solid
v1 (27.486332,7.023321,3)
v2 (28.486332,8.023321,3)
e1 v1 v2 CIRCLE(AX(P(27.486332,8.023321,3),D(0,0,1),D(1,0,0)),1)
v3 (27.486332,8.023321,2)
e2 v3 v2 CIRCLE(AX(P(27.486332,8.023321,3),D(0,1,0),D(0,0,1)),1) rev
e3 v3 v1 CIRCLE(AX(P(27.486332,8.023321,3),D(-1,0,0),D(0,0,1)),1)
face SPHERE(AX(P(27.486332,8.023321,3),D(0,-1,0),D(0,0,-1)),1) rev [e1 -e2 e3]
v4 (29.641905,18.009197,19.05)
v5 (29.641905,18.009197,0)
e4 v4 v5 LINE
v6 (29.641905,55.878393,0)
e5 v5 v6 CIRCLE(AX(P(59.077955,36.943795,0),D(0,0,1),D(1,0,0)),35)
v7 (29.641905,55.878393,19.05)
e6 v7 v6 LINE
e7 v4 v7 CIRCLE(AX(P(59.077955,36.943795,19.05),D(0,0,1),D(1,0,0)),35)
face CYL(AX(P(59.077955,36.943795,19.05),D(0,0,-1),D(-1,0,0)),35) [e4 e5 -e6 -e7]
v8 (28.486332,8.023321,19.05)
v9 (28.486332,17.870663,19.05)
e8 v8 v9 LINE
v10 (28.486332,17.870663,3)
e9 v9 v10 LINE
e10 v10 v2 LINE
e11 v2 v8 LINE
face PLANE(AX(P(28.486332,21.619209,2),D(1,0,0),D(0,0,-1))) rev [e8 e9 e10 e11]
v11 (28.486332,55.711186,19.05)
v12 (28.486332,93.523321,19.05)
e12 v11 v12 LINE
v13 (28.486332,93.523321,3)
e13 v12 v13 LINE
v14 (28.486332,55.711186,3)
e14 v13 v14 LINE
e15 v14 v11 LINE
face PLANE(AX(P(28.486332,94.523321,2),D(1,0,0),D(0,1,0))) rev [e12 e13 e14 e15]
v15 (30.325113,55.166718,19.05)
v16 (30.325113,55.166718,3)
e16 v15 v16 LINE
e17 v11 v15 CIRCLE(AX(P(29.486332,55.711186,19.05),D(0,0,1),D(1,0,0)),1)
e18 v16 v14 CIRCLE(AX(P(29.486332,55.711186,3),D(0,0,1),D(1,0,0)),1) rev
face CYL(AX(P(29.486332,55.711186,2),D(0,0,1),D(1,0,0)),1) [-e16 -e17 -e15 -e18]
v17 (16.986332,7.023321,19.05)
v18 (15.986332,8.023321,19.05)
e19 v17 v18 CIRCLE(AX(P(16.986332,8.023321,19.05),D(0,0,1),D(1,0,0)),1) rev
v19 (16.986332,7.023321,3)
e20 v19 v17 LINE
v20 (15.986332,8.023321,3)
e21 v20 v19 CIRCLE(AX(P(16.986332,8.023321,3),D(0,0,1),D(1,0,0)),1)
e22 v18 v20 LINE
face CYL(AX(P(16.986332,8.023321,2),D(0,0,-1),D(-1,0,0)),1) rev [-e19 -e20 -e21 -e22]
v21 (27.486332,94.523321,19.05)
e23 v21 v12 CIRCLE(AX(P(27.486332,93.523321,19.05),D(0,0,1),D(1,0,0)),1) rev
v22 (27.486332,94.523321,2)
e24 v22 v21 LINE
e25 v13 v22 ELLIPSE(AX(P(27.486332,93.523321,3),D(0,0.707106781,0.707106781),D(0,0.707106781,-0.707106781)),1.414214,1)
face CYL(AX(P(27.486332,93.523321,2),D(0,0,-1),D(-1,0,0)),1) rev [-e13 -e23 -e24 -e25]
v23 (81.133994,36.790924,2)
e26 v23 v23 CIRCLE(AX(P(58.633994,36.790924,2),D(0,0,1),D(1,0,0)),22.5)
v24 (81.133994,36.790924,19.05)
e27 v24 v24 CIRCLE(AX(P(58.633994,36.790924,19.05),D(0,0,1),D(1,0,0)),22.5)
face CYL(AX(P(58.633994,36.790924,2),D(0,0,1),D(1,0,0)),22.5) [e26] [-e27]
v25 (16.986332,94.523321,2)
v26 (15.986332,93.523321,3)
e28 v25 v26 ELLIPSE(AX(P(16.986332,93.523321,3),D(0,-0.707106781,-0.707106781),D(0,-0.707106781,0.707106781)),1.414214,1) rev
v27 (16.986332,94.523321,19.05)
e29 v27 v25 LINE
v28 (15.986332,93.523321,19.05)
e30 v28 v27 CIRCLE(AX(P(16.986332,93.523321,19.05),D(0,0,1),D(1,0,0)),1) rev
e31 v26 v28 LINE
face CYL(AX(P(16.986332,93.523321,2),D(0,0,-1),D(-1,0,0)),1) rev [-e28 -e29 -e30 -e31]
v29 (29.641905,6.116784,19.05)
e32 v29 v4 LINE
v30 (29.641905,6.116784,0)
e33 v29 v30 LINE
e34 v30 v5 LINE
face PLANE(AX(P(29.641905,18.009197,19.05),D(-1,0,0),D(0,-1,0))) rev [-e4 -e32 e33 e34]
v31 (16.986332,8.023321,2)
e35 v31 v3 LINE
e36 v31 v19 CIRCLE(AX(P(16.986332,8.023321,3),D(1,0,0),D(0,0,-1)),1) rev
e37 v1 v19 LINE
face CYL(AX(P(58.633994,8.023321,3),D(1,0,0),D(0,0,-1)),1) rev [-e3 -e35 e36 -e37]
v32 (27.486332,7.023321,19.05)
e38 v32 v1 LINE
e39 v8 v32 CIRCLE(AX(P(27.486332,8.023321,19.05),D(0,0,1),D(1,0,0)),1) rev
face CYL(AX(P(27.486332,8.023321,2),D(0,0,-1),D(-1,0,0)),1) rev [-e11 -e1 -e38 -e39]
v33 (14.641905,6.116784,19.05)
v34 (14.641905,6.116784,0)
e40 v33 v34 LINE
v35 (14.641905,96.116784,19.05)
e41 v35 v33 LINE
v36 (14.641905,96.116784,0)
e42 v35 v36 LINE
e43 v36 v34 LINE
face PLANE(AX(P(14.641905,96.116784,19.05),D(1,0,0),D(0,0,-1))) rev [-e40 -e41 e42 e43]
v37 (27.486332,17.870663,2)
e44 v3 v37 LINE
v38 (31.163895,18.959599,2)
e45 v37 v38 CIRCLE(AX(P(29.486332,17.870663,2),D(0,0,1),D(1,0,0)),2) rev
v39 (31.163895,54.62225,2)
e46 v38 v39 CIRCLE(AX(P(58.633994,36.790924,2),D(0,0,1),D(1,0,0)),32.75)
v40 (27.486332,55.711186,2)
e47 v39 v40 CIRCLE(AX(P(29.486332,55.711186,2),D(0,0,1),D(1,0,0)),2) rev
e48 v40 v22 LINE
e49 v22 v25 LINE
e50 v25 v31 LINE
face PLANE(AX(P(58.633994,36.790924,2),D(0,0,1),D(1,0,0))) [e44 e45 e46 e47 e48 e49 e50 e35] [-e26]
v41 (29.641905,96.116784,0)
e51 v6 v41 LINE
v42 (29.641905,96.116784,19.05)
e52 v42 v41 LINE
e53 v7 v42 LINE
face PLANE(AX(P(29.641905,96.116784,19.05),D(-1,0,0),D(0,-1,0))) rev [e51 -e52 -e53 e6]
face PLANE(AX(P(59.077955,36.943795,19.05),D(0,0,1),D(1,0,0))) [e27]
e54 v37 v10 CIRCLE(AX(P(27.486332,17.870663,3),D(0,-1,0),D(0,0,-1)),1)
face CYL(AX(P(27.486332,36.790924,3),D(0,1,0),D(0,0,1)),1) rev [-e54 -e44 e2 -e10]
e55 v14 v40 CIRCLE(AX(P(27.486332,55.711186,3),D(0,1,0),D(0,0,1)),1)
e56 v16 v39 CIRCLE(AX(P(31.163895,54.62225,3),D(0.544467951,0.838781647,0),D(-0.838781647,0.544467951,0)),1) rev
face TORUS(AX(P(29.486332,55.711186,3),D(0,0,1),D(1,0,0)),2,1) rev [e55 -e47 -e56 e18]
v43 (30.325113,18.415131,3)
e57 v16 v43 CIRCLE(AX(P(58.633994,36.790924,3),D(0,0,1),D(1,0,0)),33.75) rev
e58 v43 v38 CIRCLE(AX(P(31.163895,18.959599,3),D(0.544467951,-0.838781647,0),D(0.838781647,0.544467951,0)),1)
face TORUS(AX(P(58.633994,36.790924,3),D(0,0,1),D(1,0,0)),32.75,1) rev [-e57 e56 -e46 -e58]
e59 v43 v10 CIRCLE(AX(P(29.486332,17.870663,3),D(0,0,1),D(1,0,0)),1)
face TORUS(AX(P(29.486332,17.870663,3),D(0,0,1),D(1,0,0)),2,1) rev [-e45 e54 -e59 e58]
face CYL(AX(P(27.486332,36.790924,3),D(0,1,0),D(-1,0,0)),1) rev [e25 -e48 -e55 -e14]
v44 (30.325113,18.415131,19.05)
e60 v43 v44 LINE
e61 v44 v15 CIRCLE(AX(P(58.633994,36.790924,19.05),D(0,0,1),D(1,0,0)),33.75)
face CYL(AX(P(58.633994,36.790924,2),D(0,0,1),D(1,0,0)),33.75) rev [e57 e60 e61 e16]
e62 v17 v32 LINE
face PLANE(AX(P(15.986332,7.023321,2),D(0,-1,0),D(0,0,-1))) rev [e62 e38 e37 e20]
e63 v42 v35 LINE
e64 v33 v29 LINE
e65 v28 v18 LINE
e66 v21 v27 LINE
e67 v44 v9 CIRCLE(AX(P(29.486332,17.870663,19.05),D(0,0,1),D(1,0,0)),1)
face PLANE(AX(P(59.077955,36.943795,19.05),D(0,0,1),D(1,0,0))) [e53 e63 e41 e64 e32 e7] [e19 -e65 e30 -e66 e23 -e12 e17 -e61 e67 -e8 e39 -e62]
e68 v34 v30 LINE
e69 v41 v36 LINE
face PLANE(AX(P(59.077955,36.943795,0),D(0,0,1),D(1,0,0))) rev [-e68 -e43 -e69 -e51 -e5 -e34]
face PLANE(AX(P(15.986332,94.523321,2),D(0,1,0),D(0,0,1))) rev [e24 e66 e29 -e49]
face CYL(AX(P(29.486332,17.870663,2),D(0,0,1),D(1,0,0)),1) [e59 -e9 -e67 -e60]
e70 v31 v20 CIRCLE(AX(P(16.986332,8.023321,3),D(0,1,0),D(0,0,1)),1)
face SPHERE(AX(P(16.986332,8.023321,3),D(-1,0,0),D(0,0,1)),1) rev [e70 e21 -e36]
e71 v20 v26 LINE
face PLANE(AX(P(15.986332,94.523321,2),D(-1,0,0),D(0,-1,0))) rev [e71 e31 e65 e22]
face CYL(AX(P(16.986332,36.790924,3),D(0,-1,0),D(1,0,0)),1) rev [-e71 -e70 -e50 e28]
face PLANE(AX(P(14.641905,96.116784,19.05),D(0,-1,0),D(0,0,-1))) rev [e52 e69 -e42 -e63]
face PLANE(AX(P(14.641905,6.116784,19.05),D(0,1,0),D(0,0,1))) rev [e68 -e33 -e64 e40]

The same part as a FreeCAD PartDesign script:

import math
import FreeCAD as App
import Part
import Sketcher

V = App.Vector


def edges_at(feature, points):
    """Names of the edges that pass closest to the given points."""
    edges = feature.Shape.Edges
    near = lambda p: min(range(len(edges)), key=lambda i: edges[i].distToShape(Part.Vertex(*p))[0])
    return sorted({f"Edge{near(p) + 1}" for p in points})

doc = App.newDocument("Part")
body = doc.addObject("PartDesign::Body", "Body")

sketch1 = body.newObject("Sketcher::SketchObject", "Sketch")
sketch1.AttachmentSupport = (doc.getObject("XY_Plane"), [""])
sketch1.MapMode = "FlatFace"
sketch1.addGeometry([
    Part.LineSegment(V(29.641905, 96.116784, 0), V(14.641905, 96.116784, 0)),
    Part.LineSegment(V(14.641905, 96.116784, 0), V(14.641905, 6.116784, 0)),
    Part.LineSegment(V(14.641905, 6.116784, 0), V(29.641905, 6.116784, 0)),
    Part.LineSegment(V(29.641905, 6.116784, 0), V(29.641905, 18.009197, 0)),
    Part.ArcOfCircle(Part.Circle(V(59.077955, 36.943795, 0), V(0, 0, 1), 35), math.radians(-147.249044), math.radians(147.249044)),
    Part.LineSegment(V(29.641905, 55.878393, 0), V(29.641905, 96.116784, 0)),
], False)
sketch1.addConstraint([
    Sketcher.Constraint("Coincident", 0, 2, 1, 1),
    Sketcher.Constraint("Coincident", 1, 2, 2, 1),
    Sketcher.Constraint("Coincident", 2, 2, 3, 1),
    Sketcher.Constraint("Coincident", 3, 2, 4, 1),
    Sketcher.Constraint("Coincident", 4, 2, 5, 1),
    Sketcher.Constraint("Coincident", 5, 2, 0, 1),
    Sketcher.Constraint("Horizontal", 0),
    Sketcher.Constraint("Vertical", 1),
    Sketcher.Constraint("Horizontal", 2),
    Sketcher.Constraint("Vertical", 3),
    Sketcher.Constraint("Vertical", 5),
    Sketcher.Constraint("Vertical", 3, 2, 4, 2),
    Sketcher.Constraint("Radius", 4, 35.0),
    Sketcher.Constraint("DistanceX", 0, 2, 0, 1, 15.0),
    Sketcher.Constraint("DistanceY", 1, 2, 1, 1, 90.0),
    Sketcher.Constraint("DistanceY", 5, 1, 5, 2, 40.238391),
    Sketcher.Constraint("DistanceY", 3, 1, 3, 2, 11.892414),
    Sketcher.Constraint("DistanceX", -1, 1, 4, 3, 59.077955),
    Sketcher.Constraint("DistanceY", -1, 1, 4, 3, 36.943795),
])
pad1 = body.newObject("PartDesign::Pad", "Pad")
pad1.Profile = sketch1
pad1.Length = 19.05

sketch2 = body.newObject("Sketcher::SketchObject", "Sketch001")
sketch2.AttachmentSupport = (doc.getObject("XY_Plane"), [""])
sketch2.MapMode = "FlatFace"
sketch2.AttachmentOffset = App.Placement(V(0, 0, 19.05), App.Rotation())
sketch2.addGeometry([
    Part.LineSegment(V(28.486332, 7.023321, 0), V(28.486332, 21.619209, 0)),
    Part.ArcOfCircle(Part.Circle(V(58.633994, 36.790924, 0), V(0, 0, 1), 33.75), math.radians(-153.286318), math.radians(153.286318)),
    Part.LineSegment(V(28.486332, 51.96264, 0), V(28.486332, 94.523321, 0)),
    Part.LineSegment(V(28.486332, 94.523321, 0), V(15.986332, 94.523321, 0)),
    Part.LineSegment(V(15.986332, 94.523321, 0), V(15.986332, 7.023321, 0)),
    Part.LineSegment(V(15.986332, 7.023321, 0), V(28.486332, 7.023321, 0)),
    Part.Circle(V(58.633994, 36.790924, 0), V(0, 0, 1), 22.5),
], False)
sketch2.addConstraint([
    Sketcher.Constraint("Coincident", 0, 2, 1, 1),
    Sketcher.Constraint("Coincident", 1, 2, 2, 1),
    Sketcher.Constraint("Coincident", 2, 2, 3, 1),
    Sketcher.Constraint("Coincident", 3, 2, 4, 1),
    Sketcher.Constraint("Coincident", 4, 2, 5, 1),
    Sketcher.Constraint("Coincident", 5, 2, 0, 1),
    Sketcher.Constraint("Vertical", 0),
    Sketcher.Constraint("Vertical", 2),
    Sketcher.Constraint("Horizontal", 3),
    Sketcher.Constraint("Vertical", 4),
    Sketcher.Constraint("Horizontal", 5),
    Sketcher.Constraint("Coincident", 6, 3, 1, 3),
    Sketcher.Constraint("Vertical", 0, 2, 1, 2),
    Sketcher.Constraint("Diameter", 6, 45.0),
    Sketcher.Constraint("Radius", 1, 33.75),
    Sketcher.Constraint("DistanceX", 3, 2, 3, 1, 12.5),
    Sketcher.Constraint("DistanceY", 4, 2, 4, 1, 87.5),
    Sketcher.Constraint("DistanceY", 2, 1, 2, 2, 42.560681),
    Sketcher.Constraint("DistanceY", 0, 1, 0, 2, 14.595887),
    Sketcher.Constraint("DistanceX", -1, 1, 0, 2, 28.486332),
    Sketcher.Constraint("DistanceY", -1, 1, 0, 2, 21.619209),
])
pocket1 = body.newObject("PartDesign::Pocket", "Pocket")
pocket1.Profile = sketch2
pocket1.Length = 17.05
doc.recompute()

fillet = body.newObject("PartDesign::Fillet", "Fillet")
fillet.Base = (pocket1, edges_at(pocket1, [
    (22.236, 7.023, 2),
    (28.486, 7.023, 10.525),
    (15.986, 50.773, 2),
    (15.986, 7.023, 10.525),
    (15.986, 94.523, 10.525),
    (28.486, 73.243, 2),
    (28.486, 94.523, 10.525),
    (92.384, 36.791, 2),
    (28.486, 51.963, 10.525),
    (28.486, 14.321, 2),
    (28.486, 21.619, 10.525),
]))
fillet.Radius = 1

doc.recompute()
